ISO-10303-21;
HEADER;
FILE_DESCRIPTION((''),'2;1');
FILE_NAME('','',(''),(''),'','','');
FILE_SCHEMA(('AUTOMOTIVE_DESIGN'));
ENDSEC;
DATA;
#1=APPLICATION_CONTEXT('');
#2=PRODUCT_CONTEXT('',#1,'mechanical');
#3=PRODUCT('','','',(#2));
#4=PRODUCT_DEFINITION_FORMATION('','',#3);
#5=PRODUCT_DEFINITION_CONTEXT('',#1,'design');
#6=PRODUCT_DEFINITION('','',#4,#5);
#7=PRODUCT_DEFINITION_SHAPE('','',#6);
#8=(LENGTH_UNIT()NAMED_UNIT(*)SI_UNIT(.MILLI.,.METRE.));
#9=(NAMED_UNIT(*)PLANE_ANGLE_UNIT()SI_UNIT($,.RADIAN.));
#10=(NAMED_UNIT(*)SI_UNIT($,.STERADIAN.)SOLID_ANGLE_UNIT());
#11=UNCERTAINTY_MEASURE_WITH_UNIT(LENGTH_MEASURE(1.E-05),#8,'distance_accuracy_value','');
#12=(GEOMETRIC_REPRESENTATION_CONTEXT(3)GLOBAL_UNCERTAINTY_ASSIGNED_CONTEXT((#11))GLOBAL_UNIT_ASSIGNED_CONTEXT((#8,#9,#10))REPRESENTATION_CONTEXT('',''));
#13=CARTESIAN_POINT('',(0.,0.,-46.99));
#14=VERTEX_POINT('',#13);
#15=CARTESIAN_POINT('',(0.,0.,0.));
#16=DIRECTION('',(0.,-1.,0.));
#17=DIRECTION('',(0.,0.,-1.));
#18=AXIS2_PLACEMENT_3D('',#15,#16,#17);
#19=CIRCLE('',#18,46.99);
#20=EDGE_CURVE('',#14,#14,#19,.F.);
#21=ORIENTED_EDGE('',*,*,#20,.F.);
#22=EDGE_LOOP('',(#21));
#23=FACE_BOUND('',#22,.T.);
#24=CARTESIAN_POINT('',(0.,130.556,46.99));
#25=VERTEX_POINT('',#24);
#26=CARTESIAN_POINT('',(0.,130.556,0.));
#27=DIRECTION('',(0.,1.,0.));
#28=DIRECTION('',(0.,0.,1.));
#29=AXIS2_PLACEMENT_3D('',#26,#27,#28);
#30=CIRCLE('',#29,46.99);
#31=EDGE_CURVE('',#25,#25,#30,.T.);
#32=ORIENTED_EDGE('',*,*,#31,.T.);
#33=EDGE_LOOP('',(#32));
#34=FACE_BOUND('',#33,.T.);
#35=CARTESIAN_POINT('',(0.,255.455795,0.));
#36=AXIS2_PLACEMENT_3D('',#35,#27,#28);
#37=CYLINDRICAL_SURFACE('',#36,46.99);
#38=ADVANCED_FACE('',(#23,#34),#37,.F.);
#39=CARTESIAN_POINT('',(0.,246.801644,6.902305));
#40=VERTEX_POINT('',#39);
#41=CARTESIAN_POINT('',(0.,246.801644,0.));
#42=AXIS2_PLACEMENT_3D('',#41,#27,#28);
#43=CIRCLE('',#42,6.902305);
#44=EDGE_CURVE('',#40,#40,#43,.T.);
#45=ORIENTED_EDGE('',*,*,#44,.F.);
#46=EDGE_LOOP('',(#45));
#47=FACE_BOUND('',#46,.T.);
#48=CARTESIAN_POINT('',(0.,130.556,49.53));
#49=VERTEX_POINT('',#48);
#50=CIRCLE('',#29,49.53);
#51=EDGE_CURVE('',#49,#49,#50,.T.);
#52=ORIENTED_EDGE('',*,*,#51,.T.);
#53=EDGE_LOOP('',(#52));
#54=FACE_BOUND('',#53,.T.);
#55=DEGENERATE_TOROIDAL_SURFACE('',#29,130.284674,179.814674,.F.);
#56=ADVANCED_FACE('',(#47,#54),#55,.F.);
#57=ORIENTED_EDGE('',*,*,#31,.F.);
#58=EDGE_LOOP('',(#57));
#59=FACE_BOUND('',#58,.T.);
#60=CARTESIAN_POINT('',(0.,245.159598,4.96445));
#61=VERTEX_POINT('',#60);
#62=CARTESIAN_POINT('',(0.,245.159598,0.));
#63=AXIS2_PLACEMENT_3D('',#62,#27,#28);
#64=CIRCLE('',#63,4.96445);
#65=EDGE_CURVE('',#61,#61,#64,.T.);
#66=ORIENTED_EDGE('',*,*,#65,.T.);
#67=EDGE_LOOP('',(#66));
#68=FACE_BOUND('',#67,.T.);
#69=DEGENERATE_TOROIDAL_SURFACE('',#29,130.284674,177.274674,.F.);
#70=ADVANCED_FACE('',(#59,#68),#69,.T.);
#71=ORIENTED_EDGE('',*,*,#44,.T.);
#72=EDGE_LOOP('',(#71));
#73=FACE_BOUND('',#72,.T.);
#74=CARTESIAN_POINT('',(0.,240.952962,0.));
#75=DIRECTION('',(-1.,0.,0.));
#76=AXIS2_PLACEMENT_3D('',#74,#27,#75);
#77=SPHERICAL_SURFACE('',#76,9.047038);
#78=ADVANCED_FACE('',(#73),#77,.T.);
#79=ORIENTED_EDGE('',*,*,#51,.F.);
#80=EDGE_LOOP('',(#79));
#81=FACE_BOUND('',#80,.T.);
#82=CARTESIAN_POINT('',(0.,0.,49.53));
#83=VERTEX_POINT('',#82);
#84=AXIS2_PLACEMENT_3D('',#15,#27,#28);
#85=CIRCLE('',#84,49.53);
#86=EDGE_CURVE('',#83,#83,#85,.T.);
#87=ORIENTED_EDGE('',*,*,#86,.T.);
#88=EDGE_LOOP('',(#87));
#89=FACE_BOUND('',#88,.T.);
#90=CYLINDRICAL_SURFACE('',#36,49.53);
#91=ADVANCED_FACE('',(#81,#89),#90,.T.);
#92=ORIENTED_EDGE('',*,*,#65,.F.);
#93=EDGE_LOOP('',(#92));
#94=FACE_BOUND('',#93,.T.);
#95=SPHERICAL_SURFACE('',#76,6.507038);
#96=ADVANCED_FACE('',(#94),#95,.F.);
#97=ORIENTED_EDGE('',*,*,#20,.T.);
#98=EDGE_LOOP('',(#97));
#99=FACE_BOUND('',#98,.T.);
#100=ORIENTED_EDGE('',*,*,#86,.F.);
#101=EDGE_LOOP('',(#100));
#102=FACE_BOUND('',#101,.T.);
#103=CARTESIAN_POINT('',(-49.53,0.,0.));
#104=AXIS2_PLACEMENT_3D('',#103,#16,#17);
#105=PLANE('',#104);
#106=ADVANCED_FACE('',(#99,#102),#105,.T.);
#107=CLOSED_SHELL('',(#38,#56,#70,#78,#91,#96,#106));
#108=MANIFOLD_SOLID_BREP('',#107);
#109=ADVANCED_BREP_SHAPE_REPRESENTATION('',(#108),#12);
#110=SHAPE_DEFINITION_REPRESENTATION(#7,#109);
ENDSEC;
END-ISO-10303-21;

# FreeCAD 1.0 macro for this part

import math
import FreeCAD as App
import Part
import Sketcher
Q = App.Units.Quantity


def faces_at(feature, points):
    """Names of the faces that lie closest to the given points."""
    faces = feature.Shape.Faces
    near = lambda p: min(range(len(faces)), key=lambda i: faces[i].distToShape(Part.Vertex(*p))[0])
    return sorted({f"Face{near(p) + 1}" for p in points})

doc = App.newDocument("Part")
body = doc.addObject("PartDesign::Body", "Body")

# Sketch on XY plane
sketch1 = body.newObject("Sketcher::SketchObject", "Sketch")
sketch1.AttachmentSupport = (doc.getObject("XY_Plane"), [""])
sketch1.MapMode = "FlatFace"
sketch1.addGeometry([
    Part.LineSegment(App.Vector(-50, 131, 0), App.Vector(-50, 0, 0)),  # 0
    Part.LineSegment(App.Vector(-50, 0, 0), App.Vector(0, 0, 0)),  # 1
    Part.LineSegment(App.Vector(0, 0, 0), App.Vector(0, 250, 0)),  # 2
    Part.ArcOfCircle(Part.Circle(App.Vector(0, 241, 0), App.Vector(0, 0, 1), 9), math.radians(90), math.radians(140)),  # 3
    Part.ArcOfCircle(Part.Circle(App.Vector(130, 131, 0), App.Vector(0, 0, 1), 180), math.radians(140), math.radians(180)),  # 4
], False)
sketch1.addConstraint([
    Sketcher.Constraint("Coincident", 0, 2, 1, 1),
    Sketcher.Constraint("Coincident", 1, 2, 2, 1),
    Sketcher.Constraint("Coincident", 2, 2, 3, 1),
    Sketcher.Constraint("Tangent", 3, 2, 4, 1),
    Sketcher.Constraint("Tangent", 4, 2, 0, 1),
    Sketcher.Constraint("Vertical", 0),
    Sketcher.Constraint("Horizontal", 1),
    Sketcher.Constraint("Vertical", 2),
    Sketcher.Constraint("Coincident", 1, 2, -1, 1),
    Sketcher.Constraint("PointOnObject", 3, 3, -2),
    Sketcher.Constraint("DistanceX", 1, 1, 1, 2, Q("1.95 in")),
    Sketcher.Constraint("DistanceY", 0, 2, 0, 1, Q("5.14 in")),
    Sketcher.Constraint("DistanceY", 2, 1, 2, 2, 250.0),
    Sketcher.Constraint("DistanceY", -1, 1, 3, 2, Q("9.7166001 in")),
])
revolution = body.newObject("PartDesign::Revolution", "Revolution")
revolution.Profile = sketch1
revolution.ReferenceAxis = (sketch1, ["V_Axis"])
revolution.Angle = 360
doc.recompute()

thickness = body.newObject("PartDesign::Thickness", "Thickness")
thickness.Base = (revolution, faces_at(revolution, [(0, 0, 0)]))
thickness.Value = Q("0.1 in")
thickness.Reversed = True
thickness.Join = "Intersection"

doc.recompute()
